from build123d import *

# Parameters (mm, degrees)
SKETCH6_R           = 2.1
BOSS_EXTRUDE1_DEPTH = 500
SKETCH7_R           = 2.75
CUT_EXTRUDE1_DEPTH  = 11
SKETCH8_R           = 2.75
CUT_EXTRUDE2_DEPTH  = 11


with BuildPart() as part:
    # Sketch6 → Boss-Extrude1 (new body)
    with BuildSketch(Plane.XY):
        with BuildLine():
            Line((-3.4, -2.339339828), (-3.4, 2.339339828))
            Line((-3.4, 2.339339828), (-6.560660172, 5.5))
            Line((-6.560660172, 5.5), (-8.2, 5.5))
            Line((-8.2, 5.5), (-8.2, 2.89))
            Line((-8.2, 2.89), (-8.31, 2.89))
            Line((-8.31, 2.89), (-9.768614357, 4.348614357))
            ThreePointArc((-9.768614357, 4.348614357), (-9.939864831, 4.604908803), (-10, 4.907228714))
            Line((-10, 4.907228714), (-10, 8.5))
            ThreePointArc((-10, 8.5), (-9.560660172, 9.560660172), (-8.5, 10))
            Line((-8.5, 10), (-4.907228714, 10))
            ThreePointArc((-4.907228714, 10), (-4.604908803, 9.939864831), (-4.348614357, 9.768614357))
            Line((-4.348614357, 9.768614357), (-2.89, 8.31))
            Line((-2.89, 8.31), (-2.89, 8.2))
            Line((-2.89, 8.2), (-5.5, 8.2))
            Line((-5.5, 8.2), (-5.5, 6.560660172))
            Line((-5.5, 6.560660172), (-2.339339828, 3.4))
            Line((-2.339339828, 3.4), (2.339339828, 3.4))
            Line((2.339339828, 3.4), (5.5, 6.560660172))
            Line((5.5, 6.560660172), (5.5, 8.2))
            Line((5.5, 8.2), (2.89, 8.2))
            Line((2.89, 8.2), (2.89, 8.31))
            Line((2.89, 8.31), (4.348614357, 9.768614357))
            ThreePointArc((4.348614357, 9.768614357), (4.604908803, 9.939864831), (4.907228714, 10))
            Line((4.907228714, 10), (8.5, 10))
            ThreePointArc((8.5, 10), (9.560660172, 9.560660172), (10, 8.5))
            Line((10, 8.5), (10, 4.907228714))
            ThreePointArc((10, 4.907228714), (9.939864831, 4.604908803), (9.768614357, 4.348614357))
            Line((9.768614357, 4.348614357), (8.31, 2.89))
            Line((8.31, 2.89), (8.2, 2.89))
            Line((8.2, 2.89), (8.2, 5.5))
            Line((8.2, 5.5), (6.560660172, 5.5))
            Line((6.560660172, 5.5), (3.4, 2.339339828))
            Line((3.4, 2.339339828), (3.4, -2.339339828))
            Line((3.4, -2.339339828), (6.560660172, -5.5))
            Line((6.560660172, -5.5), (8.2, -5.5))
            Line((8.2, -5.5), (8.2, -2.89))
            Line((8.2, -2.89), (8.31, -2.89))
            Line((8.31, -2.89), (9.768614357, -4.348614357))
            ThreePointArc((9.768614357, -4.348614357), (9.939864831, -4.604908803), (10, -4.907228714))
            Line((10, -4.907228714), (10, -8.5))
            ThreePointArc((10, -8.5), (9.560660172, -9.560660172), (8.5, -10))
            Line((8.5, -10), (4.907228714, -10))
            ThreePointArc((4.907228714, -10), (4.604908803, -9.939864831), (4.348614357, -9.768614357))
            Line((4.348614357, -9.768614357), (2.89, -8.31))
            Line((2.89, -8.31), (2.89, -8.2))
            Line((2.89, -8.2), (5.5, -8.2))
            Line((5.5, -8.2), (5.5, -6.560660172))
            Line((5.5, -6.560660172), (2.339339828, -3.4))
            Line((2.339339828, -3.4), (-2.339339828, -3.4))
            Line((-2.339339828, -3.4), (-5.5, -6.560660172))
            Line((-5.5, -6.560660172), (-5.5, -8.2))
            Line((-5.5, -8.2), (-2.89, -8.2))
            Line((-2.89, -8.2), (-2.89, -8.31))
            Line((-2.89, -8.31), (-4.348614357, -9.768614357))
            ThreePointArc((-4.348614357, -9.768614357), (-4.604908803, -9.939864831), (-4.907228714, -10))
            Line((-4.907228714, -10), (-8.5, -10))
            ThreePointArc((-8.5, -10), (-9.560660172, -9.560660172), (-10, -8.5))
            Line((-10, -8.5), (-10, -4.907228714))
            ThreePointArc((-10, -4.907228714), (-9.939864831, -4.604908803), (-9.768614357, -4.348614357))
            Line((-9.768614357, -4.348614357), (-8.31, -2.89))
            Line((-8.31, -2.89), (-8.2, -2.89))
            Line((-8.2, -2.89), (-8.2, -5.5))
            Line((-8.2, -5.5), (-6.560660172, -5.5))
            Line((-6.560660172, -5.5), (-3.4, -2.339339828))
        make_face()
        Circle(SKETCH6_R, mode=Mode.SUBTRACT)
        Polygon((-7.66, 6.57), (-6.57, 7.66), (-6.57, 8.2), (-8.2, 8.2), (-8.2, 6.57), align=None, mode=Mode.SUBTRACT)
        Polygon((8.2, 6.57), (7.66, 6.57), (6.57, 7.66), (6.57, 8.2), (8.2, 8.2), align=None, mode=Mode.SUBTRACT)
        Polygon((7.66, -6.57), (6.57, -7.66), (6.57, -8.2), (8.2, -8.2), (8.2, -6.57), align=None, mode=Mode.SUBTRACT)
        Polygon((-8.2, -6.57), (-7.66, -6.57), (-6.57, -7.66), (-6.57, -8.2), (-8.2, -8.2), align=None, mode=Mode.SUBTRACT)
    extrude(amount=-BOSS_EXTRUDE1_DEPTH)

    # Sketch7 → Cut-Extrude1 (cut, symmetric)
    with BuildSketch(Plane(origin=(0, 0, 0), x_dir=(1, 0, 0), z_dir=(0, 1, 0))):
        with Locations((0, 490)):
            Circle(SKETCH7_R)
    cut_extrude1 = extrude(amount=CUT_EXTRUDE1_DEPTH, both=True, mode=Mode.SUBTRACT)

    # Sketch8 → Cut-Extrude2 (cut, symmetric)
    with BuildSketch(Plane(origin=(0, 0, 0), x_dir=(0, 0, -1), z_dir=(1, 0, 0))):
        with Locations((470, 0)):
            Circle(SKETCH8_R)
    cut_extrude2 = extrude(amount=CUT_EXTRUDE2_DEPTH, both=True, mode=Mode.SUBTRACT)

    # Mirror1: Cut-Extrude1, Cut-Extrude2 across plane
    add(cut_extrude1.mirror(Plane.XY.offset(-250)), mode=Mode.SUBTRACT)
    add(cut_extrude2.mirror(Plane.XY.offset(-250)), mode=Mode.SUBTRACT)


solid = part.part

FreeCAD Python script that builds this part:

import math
import FreeCAD as App
import Part
import Sketcher
from FreeCAD import Vector

doc = App.newDocument("Part")
params = doc.addObject("Spreadsheet::Sheet", "Params")
for row, (alias, value) in enumerate([
    ("sketch1_diameter", "4.2 mm"),
    ("sketch1_radius", "1.5 mm"),
    ("sketch1_radius2", "0.79 mm"),
    ("sketch1_width", "0.11 mm"),
    ("sketch1_width2", "2.61 mm"),
    ("pad1_length", "500 mm"),
    ("sketch2_diameter", "5.5 mm"),
    ("pocket1_length", "22 mm"),
    ("sketch3_diameter", "5.5 mm"),
    ("pocket2_length", "22 mm"),
], start=1):
    params.set(f"A{row}", alias)
    params.set(f"B{row}", "=" + value)
    params.setAlias(f"B{row}", alias)

body = doc.addObject("PartDesign::Body", "Body")

# Sketch on XY plane
sketch1 = body.newObject("Sketcher::SketchObject", "Sketch")
sketch1.AttachmentSupport = (doc.getObject("XY_Plane"), [""])
sketch1.MapMode = "FlatFace"
sketch1.addGeometry(Part.LineSegment(Vector(-3.4, 2.33934, 0), Vector(-3.4, -2.33934, 0)), False)
sketch1.addGeometry(Part.LineSegment(Vector(-3.4, -2.33934, 0), Vector(-6.56066, -5.5, 0)), False)
sketch1.addGeometry(Part.LineSegment(Vector(-6.56066, -5.5, 0), Vector(-8.2, -5.5, 0)), False)
sketch1.addGeometry(Part.LineSegment(Vector(-8.2, -5.5, 0), Vector(-8.2, -2.89, 0)), False)
sketch1.addGeometry(Part.LineSegment(Vector(-8.2, -2.89, 0), Vector(-8.31, -2.89, 0)), False)
sketch1.addGeometry(Part.LineSegment(Vector(-8.31, -2.89, 0), Vector(-9.768614, -4.348614, 0)), False)
sketch1.addGeometry(Part.ArcOfCircle(Part.Circle(Vector(-9.21, -4.907229, 0), Vector(0, 0, 1), 0.79), math.radians(135), math.radians(180)), False)
sketch1.addGeometry(Part.LineSegment(Vector(-10, -4.907229, 0), Vector(-10, -8.5, 0)), False)
sketch1.addGeometry(Part.ArcOfCircle(Part.Circle(Vector(-8.5, -8.5, 0), Vector(0, 0, 1), 1.5), math.radians(180), math.radians(270)), False)
sketch1.addGeometry(Part.LineSegment(Vector(-8.5, -10, 0), Vector(-4.907229, -10, 0)), False)
sketch1.addGeometry(Part.ArcOfCircle(Part.Circle(Vector(-4.907229, -9.21, 0), Vector(0, 0, 1), 0.79), math.radians(-90), math.radians(-45)), False)
sketch1.addGeometry(Part.LineSegment(Vector(-4.348614, -9.768614, 0), Vector(-2.89, -8.31, 0)), False)
sketch1.addGeometry(Part.LineSegment(Vector(-2.89, -8.31, 0), Vector(-2.89, -8.2, 0)), False)
sketch1.addGeometry(Part.LineSegment(Vector(-2.89, -8.2, 0), Vector(-5.5, -8.2, 0)), False)
sketch1.addGeometry(Part.LineSegment(Vector(-5.5, -8.2, 0), Vector(-5.5, -6.56066, 0)), False)
sketch1.addGeometry(Part.LineSegment(Vector(-5.5, -6.56066, 0), Vector(-2.33934, -3.4, 0)), False)
sketch1.addGeometry(Part.LineSegment(Vector(-2.33934, -3.4, 0), Vector(2.33934, -3.4, 0)), False)
sketch1.addGeometry(Part.LineSegment(Vector(2.33934, -3.4, 0), Vector(5.5, -6.56066, 0)), False)
sketch1.addGeometry(Part.LineSegment(Vector(5.5, -6.56066, 0), Vector(5.5, -8.2, 0)), False)
sketch1.addGeometry(Part.LineSegment(Vector(5.5, -8.2, 0), Vector(2.89, -8.2, 0)), False)
sketch1.addGeometry(Part.LineSegment(Vector(2.89, -8.2, 0), Vector(2.89, -8.31, 0)), False)
sketch1.addGeometry(Part.LineSegment(Vector(2.89, -8.31, 0), Vector(4.348614, -9.768614, 0)), False)
sketch1.addGeometry(Part.ArcOfCircle(Part.Circle(Vector(4.907229, -9.21, 0), Vector(0, 0, 1), 0.79), math.radians(-135), math.radians(-90)), False)
sketch1.addGeometry(Part.LineSegment(Vector(4.907229, -10, 0), Vector(8.5, -10, 0)), False)
sketch1.addGeometry(Part.ArcOfCircle(Part.Circle(Vector(8.5, -8.5, 0), Vector(0, 0, 1), 1.5), math.radians(-90), math.radians(0)), False)
sketch1.addGeometry(Part.LineSegment(Vector(10, -8.5, 0), Vector(10, -4.907229, 0)), False)
sketch1.addGeometry(Part.ArcOfCircle(Part.Circle(Vector(9.21, -4.907229, 0), Vector(0, 0, 1), 0.79), math.radians(0), math.radians(45)), False)
sketch1.addGeometry(Part.LineSegment(Vector(9.768614, -4.348614, 0), Vector(8.31, -2.89, 0)), False)
sketch1.addGeometry(Part.LineSegment(Vector(8.31, -2.89, 0), Vector(8.2, -2.89, 0)), False)
sketch1.addGeometry(Part.LineSegment(Vector(8.2, -2.89, 0), Vector(8.2, -5.5, 0)), False)
sketch1.addGeometry(Part.LineSegment(Vector(8.2, -5.5, 0), Vector(6.56066, -5.5, 0)), False)
sketch1.addGeometry(Part.LineSegment(Vector(6.56066, -5.5, 0), Vector(3.4, -2.33934, 0)), False)
sketch1.addGeometry(Part.LineSegment(Vector(3.4, -2.33934, 0), Vector(3.4, 2.33934, 0)), False)
sketch1.addGeometry(Part.LineSegment(Vector(3.4, 2.33934, 0), Vector(6.56066, 5.5, 0)), False)
sketch1.addGeometry(Part.LineSegment(Vector(6.56066, 5.5, 0), Vector(8.2, 5.5, 0)), False)
sketch1.addGeometry(Part.LineSegment(Vector(8.2, 5.5, 0), Vector(8.2, 2.89, 0)), False)
sketch1.addGeometry(Part.LineSegment(Vector(8.2, 2.89, 0), Vector(8.31, 2.89, 0)), False)
sketch1.addGeometry(Part.LineSegment(Vector(8.31, 2.89, 0), Vector(9.768614, 4.348614, 0)), False)
sketch1.addGeometry(Part.ArcOfCircle(Part.Circle(Vector(9.21, 4.907229, 0), Vector(0, 0, 1), 0.79), math.radians(-45), math.radians(0)), False)
sketch1.addGeometry(Part.LineSegment(Vector(10, 4.907229, 0), Vector(10, 8.5, 0)), False)
sketch1.addGeometry(Part.ArcOfCircle(Part.Circle(Vector(8.5, 8.5, 0), Vector(0, 0, 1), 1.5), math.radians(0), math.radians(90)), False)
sketch1.addGeometry(Part.LineSegment(Vector(8.5, 10, 0), Vector(4.907229, 10, 0)), False)
sketch1.addGeometry(Part.ArcOfCircle(Part.Circle(Vector(4.907229, 9.21, 0), Vector(0, 0, 1), 0.79), math.radians(90), math.radians(135)), False)
sketch1.addGeometry(Part.LineSegment(Vector(4.348614, 9.768614, 0), Vector(2.89, 8.31, 0)), False)
sketch1.addGeometry(Part.LineSegment(Vector(2.89, 8.31, 0), Vector(2.89, 8.2, 0)), False)
sketch1.addGeometry(Part.LineSegment(Vector(2.89, 8.2, 0), Vector(5.5, 8.2, 0)), False)
sketch1.addGeometry(Part.LineSegment(Vector(5.5, 8.2, 0), Vector(5.5, 6.56066, 0)), False)
sketch1.addGeometry(Part.LineSegment(Vector(5.5, 6.56066, 0), Vector(2.33934, 3.4, 0)), False)
sketch1.addGeometry(Part.LineSegment(Vector(2.33934, 3.4, 0), Vector(-2.33934, 3.4, 0)), False)
sketch1.addGeometry(Part.LineSegment(Vector(-2.33934, 3.4, 0), Vector(-5.5, 6.56066, 0)), False)
sketch1.addGeometry(Part.LineSegment(Vector(-5.5, 6.56066, 0), Vector(-5.5, 8.2, 0)), False)
sketch1.addGeometry(Part.LineSegment(Vector(-5.5, 8.2, 0), Vector(-2.89, 8.2, 0)), False)
sketch1.addGeometry(Part.LineSegment(Vector(-2.89, 8.2, 0), Vector(-2.89, 8.31, 0)), False)
sketch1.addGeometry(Part.LineSegment(Vector(-2.89, 8.31, 0), Vector(-4.348614, 9.768614, 0)), False)
sketch1.addGeometry(Part.ArcOfCircle(Part.Circle(Vector(-4.907229, 9.21, 0), Vector(0, 0, 1), 0.79), math.radians(45), math.radians(90)), False)
sketch1.addGeometry(Part.LineSegment(Vector(-4.907229, 10, 0), Vector(-8.5, 10, 0)), False)
sketch1.addGeometry(Part.ArcOfCircle(Part.Circle(Vector(-8.5, 8.5, 0), Vector(0, 0, 1), 1.5), math.radians(90), math.radians(180)), False)
sketch1.addGeometry(Part.LineSegment(Vector(-10, 8.5, 0), Vector(-10, 4.907229, 0)), False)
sketch1.addGeometry(Part.ArcOfCircle(Part.Circle(Vector(-9.21, 4.907229, 0), Vector(0, 0, 1), 0.79), math.radians(180), math.radians(225)), False)
sketch1.addGeometry(Part.LineSegment(Vector(-9.768614, 4.348614, 0), Vector(-8.31, 2.89, 0)), False)
sketch1.addGeometry(Part.LineSegment(Vector(-8.31, 2.89, 0), Vector(-8.2, 2.89, 0)), False)
sketch1.addGeometry(Part.LineSegment(Vector(-8.2, 2.89, 0), Vector(-8.2, 5.5, 0)), False)
sketch1.addGeometry(Part.LineSegment(Vector(-8.2, 5.5, 0), Vector(-6.56066, 5.5, 0)), False)
sketch1.addGeometry(Part.LineSegment(Vector(-6.56066, 5.5, 0), Vector(-3.4, 2.33934, 0)), False)
sketch1.addGeometry(Part.LineSegment(Vector(7.66, -6.57, 0), Vector(8.2, -6.57, 0)), False)
sketch1.addGeometry(Part.LineSegment(Vector(8.2, -6.57, 0), Vector(8.2, -8.2, 0)), False)
sketch1.addGeometry(Part.LineSegment(Vector(8.2, -8.2, 0), Vector(6.57, -8.2, 0)), False)
sketch1.addGeometry(Part.LineSegment(Vector(6.57, -8.2, 0), Vector(6.57, -7.66, 0)), False)
sketch1.addGeometry(Part.LineSegment(Vector(6.57, -7.66, 0), Vector(7.66, -6.57, 0)), False)
sketch1.addGeometry(Part.LineSegment(Vector(-8.2, -6.57, 0), Vector(-7.66, -6.57, 0)), False)
sketch1.addGeometry(Part.LineSegment(Vector(-7.66, -6.57, 0), Vector(-6.57, -7.66, 0)), False)
sketch1.addGeometry(Part.LineSegment(Vector(-6.57, -7.66, 0), Vector(-6.57, -8.2, 0)), False)
sketch1.addGeometry(Part.LineSegment(Vector(-6.57, -8.2, 0), Vector(-8.2, -8.2, 0)), False)
sketch1.addGeometry(Part.LineSegment(Vector(-8.2, -8.2, 0), Vector(-8.2, -6.57, 0)), False)
sketch1.addGeometry(Part.LineSegment(Vector(8.2, 6.57, 0), Vector(7.66, 6.57, 0)), False)
sketch1.addGeometry(Part.LineSegment(Vector(7.66, 6.57, 0), Vector(6.57, 7.66, 0)), False)
sketch1.addGeometry(Part.LineSegment(Vector(6.57, 7.66, 0), Vector(6.57, 8.2, 0)), False)
sketch1.addGeometry(Part.LineSegment(Vector(6.57, 8.2, 0), Vector(8.2, 8.2, 0)), False)
sketch1.addGeometry(Part.LineSegment(Vector(8.2, 8.2, 0), Vector(8.2, 6.57, 0)), False)
sketch1.addGeometry(Part.Circle(Vector(0, 0, 0), Vector(0, 0, 1), 2.1), False)
sketch1.addGeometry(Part.LineSegment(Vector(-7.66, 6.57, 0), Vector(-8.2, 6.57, 0)), False)
sketch1.addGeometry(Part.LineSegment(Vector(-8.2, 6.57, 0), Vector(-8.2, 8.2, 0)), False)
sketch1.addGeometry(Part.LineSegment(Vector(-8.2, 8.2, 0), Vector(-6.57, 8.2, 0)), False)
sketch1.addGeometry(Part.LineSegment(Vector(-6.57, 8.2, 0), Vector(-6.57, 7.66, 0)), False)
sketch1.addGeometry(Part.LineSegment(Vector(-6.57, 7.66, 0), Vector(-7.66, 6.57, 0)), False)
sketch1.addConstraint(Sketcher.Constraint("Coincident", 0, 2, 1, 1))
sketch1.addConstraint(Sketcher.Constraint("Coincident", 1, 2, 2, 1))
sketch1.addConstraint(Sketcher.Constraint("Coincident", 2, 2, 3, 1))
sketch1.addConstraint(Sketcher.Constraint("Coincident", 3, 2, 4, 1))
sketch1.addConstraint(Sketcher.Constraint("Coincident", 4, 2, 5, 1))
sketch1.addConstraint(Sketcher.Constraint("Tangent", 5, 2, 6, 1))
sketch1.addConstraint(Sketcher.Constraint("Tangent", 6, 2, 7, 1))
sketch1.addConstraint(Sketcher.Constraint("Tangent", 7, 2, 8, 1))
sketch1.addConstraint(Sketcher.Constraint("Tangent", 8, 2, 9, 1))
sketch1.addConstraint(Sketcher.Constraint("Tangent", 9, 2, 10, 1))
sketch1.addConstraint(Sketcher.Constraint("Tangent", 10, 2, 11, 1))
sketch1.addConstraint(Sketcher.Constraint("Coincident", 11, 2, 12, 1))
sketch1.addConstraint(Sketcher.Constraint("Coincident", 12, 2, 13, 1))
sketch1.addConstraint(Sketcher.Constraint("Coincident", 13, 2, 14, 1))
sketch1.addConstraint(Sketcher.Constraint("Coincident", 14, 2, 15, 1))
sketch1.addConstraint(Sketcher.Constraint("Coincident", 15, 2, 16, 1))
sketch1.addConstraint(Sketcher.Constraint("Coincident", 16, 2, 17, 1))
sketch1.addConstraint(Sketcher.Constraint("Coincident", 17, 2, 18, 1))
sketch1.addConstraint(Sketcher.Constraint("Coincident", 18, 2, 19, 1))
sketch1.addConstraint(Sketcher.Constraint("Coincident", 19, 2, 20, 1))
sketch1.addConstraint(Sketcher.Constraint("Coincident", 20, 2, 21, 1))
sketch1.addConstraint(Sketcher.Constraint("Tangent", 21, 2, 22, 1))
sketch1.addConstraint(Sketcher.Constraint("Tangent", 22, 2, 23, 1))
sketch1.addConstraint(Sketcher.Constraint("Tangent", 23, 2, 24, 1))
sketch1.addConstraint(Sketcher.Constraint("Tangent", 24, 2, 25, 1))
sketch1.addConstraint(Sketcher.Constraint("Tangent", 25, 2, 26, 1))
sketch1.addConstraint(Sketcher.Constraint("Tangent", 26, 2, 27, 1))
sketch1.addConstraint(Sketcher.Constraint("Coincident", 27, 2, 28, 1))
sketch1.addConstraint(Sketcher.Constraint("Coincident", 28, 2, 29, 1))
sketch1.addConstraint(Sketcher.Constraint("Coincident", 29, 2, 30, 1))
sketch1.addConstraint(Sketcher.Constraint("Coincident", 30, 2, 31, 1))
sketch1.addConstraint(Sketcher.Constraint("Coincident", 31, 2, 32, 1))
sketch1.addConstraint(Sketcher.Constraint("Coincident", 32, 2, 33, 1))
sketch1.addConstraint(Sketcher.Constraint("Coincident", 33, 2, 34, 1))
sketch1.addConstraint(Sketcher.Constraint("Coincident", 34, 2, 35, 1))
sketch1.addConstraint(Sketcher.Constraint("Coincident", 35, 2, 36, 1))
sketch1.addConstraint(Sketcher.Constraint("Coincident", 36, 2, 37, 1))
sketch1.addConstraint(Sketcher.Constraint("Tangent", 37, 2, 38, 1))
sketch1.addConstraint(Sketcher.Constraint("Tangent", 38, 2, 39, 1))
sketch1.addConstraint(Sketcher.Constraint("Tangent", 39, 2, 40, 1))
sketch1.addConstraint(Sketcher.Constraint("Tangent", 40, 2, 41, 1))
sketch1.addConstraint(Sketcher.Constraint("Tangent", 41, 2, 42, 1))
sketch1.addConstraint(Sketcher.Constraint("Tangent", 42, 2, 43, 1))
sketch1.addConstraint(Sketcher.Constraint("Coincident", 43, 2, 44, 1))
sketch1.addConstraint(Sketcher.Constraint("Coincident", 44, 2, 45, 1))
sketch1.addConstraint(Sketcher.Constraint("Coincident", 45, 2, 46, 1))
sketch1.addConstraint(Sketcher.Constraint("Coincident", 46, 2, 47, 1))
sketch1.addConstraint(Sketcher.Constraint("Coincident", 47, 2, 48, 1))
sketch1.addConstraint(Sketcher.Constraint("Coincident", 48, 2, 49, 1))
sketch1.addConstraint(Sketcher.Constraint("Coincident", 49, 2, 50, 1))
sketch1.addConstraint(Sketcher.Constraint("Coincident", 50, 2, 51, 1))
sketch1.addConstraint(Sketcher.Constraint("Coincident", 51, 2, 52, 1))
sketch1.addConstraint(Sketcher.Constraint("Coincident", 52, 2, 53, 1))
sketch1.addConstraint(Sketcher.Constraint("Tangent", 53, 2, 54, 1))
sketch1.addConstraint(Sketcher.Constraint("Tangent", 54, 2, 55, 1))
sketch1.addConstraint(Sketcher.Constraint("Tangent", 55, 2, 56, 1))
sketch1.addConstraint(Sketcher.Constraint("Tangent", 56, 2, 57, 1))
sketch1.addConstraint(Sketcher.Constraint("Tangent", 57, 2, 58, 1))
sketch1.addConstraint(Sketcher.Constraint("Tangent", 58, 2, 59, 1))
sketch1.addConstraint(Sketcher.Constraint("Coincident", 59, 2, 60, 1))
sketch1.addConstraint(Sketcher.Constraint("Coincident", 60, 2, 61, 1))
sketch1.addConstraint(Sketcher.Constraint("Coincident", 61, 2, 62, 1))
sketch1.addConstraint(Sketcher.Constraint("Coincident", 62, 2, 63, 1))
sketch1.addConstraint(Sketcher.Constraint("Coincident", 63, 2, 0, 1))
sketch1.addConstraint(Sketcher.Constraint("Coincident", 64, 2, 65, 1))
sketch1.addConstraint(Sketcher.Constraint("Coincident", 65, 2, 66, 1))
sketch1.addConstraint(Sketcher.Constraint("Coincident", 66, 2, 67, 1))
sketch1.addConstraint(Sketcher.Constraint("Coincident", 67, 2, 68, 1))
sketch1.addConstraint(Sketcher.Constraint("Coincident", 68, 2, 64, 1))
sketch1.addConstraint(Sketcher.Constraint("Coincident", 69, 2, 70, 1))
sketch1.addConstraint(Sketcher.Constraint("Coincident", 70, 2, 71, 1))
sketch1.addConstraint(Sketcher.Constraint("Coincident", 71, 2, 72, 1))
sketch1.addConstraint(Sketcher.Constraint("Coincident", 72, 2, 73, 1))
sketch1.addConstraint(Sketcher.Constraint("Coincident", 73, 2, 69, 1))
sketch1.addConstraint(Sketcher.Constraint("Coincident", 74, 2, 75, 1))
sketch1.addConstraint(Sketcher.Constraint("Coincident", 75, 2, 76, 1))
sketch1.addConstraint(Sketcher.Constraint("Coincident", 76, 2, 77, 1))
sketch1.addConstraint(Sketcher.Constraint("Coincident", 77, 2, 78, 1))
sketch1.addConstraint(Sketcher.Constraint("Coincident", 78, 2, 74, 1))
sketch1.addConstraint(Sketcher.Constraint("Coincident", 80, 2, 81, 1))
sketch1.addConstraint(Sketcher.Constraint("Coincident", 81, 2, 82, 1))
sketch1.addConstraint(Sketcher.Constraint("Coincident", 82, 2, 83, 1))
sketch1.addConstraint(Sketcher.Constraint("Coincident", 83, 2, 84, 1))
sketch1.addConstraint(Sketcher.Constraint("Coincident", 84, 2, 80, 1))
sketch1.addConstraint(Sketcher.Constraint("Vertical", 0))
sketch1.addConstraint(Sketcher.Constraint("Horizontal", 2))
sketch1.addConstraint(Sketcher.Constraint("Vertical", 3))
sketch1.addConstraint(Sketcher.Constraint("Horizontal", 4))
sketch1.addConstraint(Sketcher.Constraint("Vertical", 7))
sketch1.addConstraint(Sketcher.Constraint("Horizontal", 9))
sketch1.addConstraint(Sketcher.Constraint("Vertical", 12))
sketch1.addConstraint(Sketcher.Constraint("Horizontal", 13))
sketch1.addConstraint(Sketcher.Constraint("Vertical", 14))
sketch1.addConstraint(Sketcher.Constraint("Horizontal", 16))
sketch1.addConstraint(Sketcher.Constraint("Vertical", 18))
sketch1.addConstraint(Sketcher.Constraint("Horizontal", 19))
sketch1.addConstraint(Sketcher.Constraint("Vertical", 20))
sketch1.addConstraint(Sketcher.Constraint("Horizontal", 23))
sketch1.addConstraint(Sketcher.Constraint("Vertical", 25))
sketch1.addConstraint(Sketcher.Constraint("Horizontal", 28))
sketch1.addConstraint(Sketcher.Constraint("Vertical", 29))
sketch1.addConstraint(Sketcher.Constraint("Horizontal", 30))
sketch1.addConstraint(Sketcher.Constraint("Vertical", 32))
sketch1.addConstraint(Sketcher.Constraint("Horizontal", 34))
sketch1.addConstraint(Sketcher.Constraint("Vertical", 35))
sketch1.addConstraint(Sketcher.Constraint("Horizontal", 36))
sketch1.addConstraint(Sketcher.Constraint("Vertical", 39))
sketch1.addConstraint(Sketcher.Constraint("Horizontal", 41))
sketch1.addConstraint(Sketcher.Constraint("Vertical", 44))
sketch1.addConstraint(Sketcher.Constraint("Horizontal", 45))
sketch1.addConstraint(Sketcher.Constraint("Vertical", 46))
sketch1.addConstraint(Sketcher.Constraint("Horizontal", 48))
sketch1.addConstraint(Sketcher.Constraint("Vertical", 50))
sketch1.addConstraint(Sketcher.Constraint("Horizontal", 51))
sketch1.addConstraint(Sketcher.Constraint("Vertical", 52))
sketch1.addConstraint(Sketcher.Constraint("Horizontal", 55))
sketch1.addConstraint(Sketcher.Constraint("Vertical", 57))
sketch1.addConstraint(Sketcher.Constraint("Horizontal", 60))
sketch1.addConstraint(Sketcher.Constraint("Vertical", 61))
sketch1.addConstraint(Sketcher.Constraint("Horizontal", 62))
sketch1.addConstraint(Sketcher.Constraint("Horizontal", 64))
sketch1.addConstraint(Sketcher.Constraint("Vertical", 65))
sketch1.addConstraint(Sketcher.Constraint("Horizontal", 66))
sketch1.addConstraint(Sketcher.Constraint("Vertical", 67))
sketch1.addConstraint(Sketcher.Constraint("Horizontal", 69))
sketch1.addConstraint(Sketcher.Constraint("Vertical", 71))
sketch1.addConstraint(Sketcher.Constraint("Horizontal", 72))
sketch1.addConstraint(Sketcher.Constraint("Vertical", 73))
sketch1.addConstraint(Sketcher.Constraint("Horizontal", 74))
sketch1.addConstraint(Sketcher.Constraint("Vertical", 76))
sketch1.addConstraint(Sketcher.Constraint("Horizontal", 77))
sketch1.addConstraint(Sketcher.Constraint("Vertical", 78))
sketch1.addConstraint(Sketcher.Constraint("Horizontal", 80))
sketch1.addConstraint(Sketcher.Constraint("Vertical", 81))
sketch1.addConstraint(Sketcher.Constraint("Horizontal", 82))
sketch1.addConstraint(Sketcher.Constraint("Vertical", 83))
sketch1.addConstraint(Sketcher.Constraint("Coincident", 79, 3, -1, 1))
sketch1.addConstraint(Sketcher.Constraint("Equal", 6, 10))
sketch1.addConstraint(Sketcher.Constraint("Equal", 10, 22))
sketch1.addConstraint(Sketcher.Constraint("Equal", 8, 24))
sketch1.addConstraint(Sketcher.Constraint("Equal", 22, 26))
sketch1.addConstraint(Sketcher.Constraint("Equal", 26, 38))
sketch1.addConstraint(Sketcher.Constraint("Equal", 24, 40))
sketch1.addConstraint(Sketcher.Constraint("Equal", 38, 42))
sketch1.addConstraint(Sketcher.Constraint("Equal", 42, 54))
sketch1.addConstraint(Sketcher.Constraint("Equal", 40, 56))
sketch1.addConstraint(Sketcher.Constraint("Equal", 54, 58))
sketch1.addConstraint(Sketcher.Constraint("Symmetric", 6, 3, 38, 3, -1, 1))
sketch1.addConstraint(Sketcher.Constraint("Symmetric", 10, 3, 42, 3, -1, 1))
sketch1.addConstraint(Sketcher.Constraint("Symmetric", 22, 3, 54, 3, -1, 1))
sketch1.addConstraint(Sketcher.Constraint("Symmetric", 26, 3, 58, 3, -1, 1))
sketch1.addConstraint(Sketcher.Constraint("Symmetric", 0, 2, 32, 2, -1, 1))
sketch1.addConstraint(Sketcher.Constraint("Symmetric", 1, 2, 33, 2, -1, 1))
sketch1.addConstraint(Sketcher.Constraint("Symmetric", 3, 2, 35, 2, -1, 1))
sketch1.addConstraint(Sketcher.Constraint("Symmetric", 11, 2, 43, 2, -1, 1))
sketch1.addConstraint(Sketcher.Constraint("Symmetric", 13, 2, 45, 2, -1, 1))
sketch1.addConstraint(Sketcher.Constraint("Symmetric", 15, 2, 47, 2, -1, 1))
sketch1.addConstraint(Sketcher.Constraint("Symmetric", 17, 2, 49, 2, -1, 1))
sketch1.addConstraint(Sketcher.Constraint("Symmetric", 19, 2, 51, 2, -1, 1))
sketch1.addConstraint(Sketcher.Constraint("Symmetric", 27, 2, 59, 2, -1, 1))
sketch1.addConstraint(Sketcher.Constraint("Symmetric", 29, 2, 61, 2, -1, 1))
sketch1.addConstraint(Sketcher.Constraint("Symmetric", 69, 2, 74, 2, -1, 1))
sketch1.addConstraint(Sketcher.Constraint("Symmetric", 70, 2, 75, 2, -1, 1))
sketch1.addConstraint(Sketcher.Constraint("Symmetric", 72, 2, 77, 2, -1, 1))
sketch1.addConstraint(Sketcher.Constraint("Symmetric", 64, 2, 80, 2, -1, 1))
sketch1.addConstraint(Sketcher.Constraint("Symmetric", 66, 2, 82, 2, -1, 1))
sketch1.addConstraint(Sketcher.Constraint("Symmetric", 10, 3, 22, 3, -2))
sketch1.addConstraint(Sketcher.Constraint("Symmetric", 6, 3, 26, 3, -2))
sketch1.addConstraint(Sketcher.Constraint("Symmetric", 14, 2, 17, 2, -2))
sketch1.addConstraint(Sketcher.Constraint("Symmetric", 12, 2, 19, 2, -2))
sketch1.addConstraint(Sketcher.Constraint("Symmetric", 4, 2, 27, 2, -2))
sketch1.addConstraint(Sketcher.Constraint("Symmetric", 2, 2, 29, 2, -2))
sketch1.addConstraint(Sketcher.Constraint("Symmetric", 68, 2, 69, 2, -2))
sketch1.addConstraint(Sketcher.Constraint("Symmetric", 67, 2, 70, 2, -2))
sketch1.addConstraint(Sketcher.Constraint("Symmetric", 65, 2, 72, 2, -2))
sketch1.addConstraint(Sketcher.Constraint("Parallel", 1, 5))
sketch1.addConstraint(Sketcher.Constraint("Parallel", 5, 11))
sketch1.addConstraint(Sketcher.Constraint("Parallel", 11, 15))
sketch1.addConstraint(Sketcher.Constraint("Perpendicular", 15, 17))
sketch1.addConstraint(Sketcher.Constraint("Parallel", 17, 21))
sketch1.addConstraint(Sketcher.Constraint("Parallel", 21, 27))
sketch1.addConstraint(Sketcher.Constraint("Parallel", 27, 31))
sketch1.addConstraint(Sketcher.Constraint("Parallel", 33, 37))
sketch1.addConstraint(Sketcher.Constraint("Parallel", 43, 47))
sketch1.addConstraint(Sketcher.Constraint("Perpendicular", 47, 49))
sketch1.addConstraint(Sketcher.Constraint("Parallel", 49, 53))
sketch1.addConstraint(Sketcher.Constraint("Parallel", 59, 63))
sketch1.addConstraint(Sketcher.Constraint("Perpendicular", 63, 68))
sketch1.addConstraint(Sketcher.Constraint("Perpendicular", 75, 84))
sketch1.addConstraint(Sketcher.Constraint("Horizontal", 0, 2, 31, 2))
sketch1.addConstraint(Sketcher.Constraint("Horizontal", 32, 2, 63, 2))
sketch1.addConstraint(Sketcher.Constraint("Horizontal", 19, 2, 65, 2))
sketch1.addConstraint(Sketcher.Constraint("Horizontal", 75, 2, 83, 2))
sketch1.addConstraint(Sketcher.Constraint("Vertical", 35, 2, 64, 2))
sketch1.addConstraint(Sketcher.Constraint("Equal", 48, 0))
sketch1.addConstraint(Sketcher.Constraint("Equal", 51, 3))
sketch1.addConstraint(Sketcher.Constraint("Equal", 55, 7))
sketch1.addConstraint(Sketcher.Constraint("Equal", 60, 12))
sketch1.addConstraint(Sketcher.Constraint("Equal", 62, 14))
sketch1.addConstraint(Sketcher.Constraint("Equal", 82, 65))
sketch1.addConstraint(Sketcher.Constraint("Equal", 5, 11))
sketch1.addConstraint(Sketcher.Constraint("Equal", 1, 15))
sketch1.addConstraint(Sketcher.Constraint("Diameter", 79, 4.2))
sketch1.addConstraint(Sketcher.Constraint("Radius", 8, 1.5))
sketch1.addConstraint(Sketcher.Constraint("Radius", 6, 0.79))
sketch1.addConstraint(Sketcher.Constraint("DistanceX", 6, 2, -1, 1, 10.0))
sketch1.addConstraint(Sketcher.Constraint("DistanceX", 4, 2, 4, 1, 0.11))
sketch1.addConstraint(Sketcher.Constraint("DistanceX", 13, 2, 13, 1, 2.61))
sketch1.addConstraint(Sketcher.Constraint("DistanceX", 64, 1, 64, 2, 0.54))
sketch1.addConstraint(Sketcher.Constraint("DistanceX", 66, 2, 66, 1, 1.63))
sketch1.addConstraint(Sketcher.Constraint("DistanceX", 0, 2, -1, 1, 3.4))
sketch1.addConstraint(Sketcher.Constraint("DistanceY", 1, 2, -1, 1, 5.5))
sketch1.addConstraint(Sketcher.Constraint("DistanceX", 2, 2, -1, 1, 8.2))
sketch1.addConstraint(Sketcher.Constraint("DistanceX", 2, 2, 2, 1, 1.63934))
sketch1.setExpression("Constraints[202]", "Params.sketch1_diameter")
sketch1.setExpression("Constraints[203]", "Params.sketch1_radius")
sketch1.setExpression("Constraints[204]", "Params.sketch1_radius2")
sketch1.setExpression("Constraints[206]", "Params.sketch1_width")
sketch1.setExpression("Constraints[207]", "Params.sketch1_width2")
pad1 = body.newObject("PartDesign::Pad", "Pad")
pad1.Profile = sketch1
pad1.setExpression("Length", "Params.pad1_length")
pad1.Reversed = True

# Sketch on XZ plane
sketch2 = body.newObject("Sketcher::SketchObject", "Sketch001")
sketch2.AttachmentSupport = (doc.getObject("XZ_Plane"), [""])
sketch2.MapMode = "FlatFace"
sketch2.addGeometry(Part.Circle(Vector(0, -490, 0), Vector(0, 0, 1), 2.75), False)
sketch2.addConstraint(Sketcher.Constraint("PointOnObject", 0, 3, -2))
sketch2.addConstraint(Sketcher.Constraint("Diameter", 0, 5.5))
sketch2.addConstraint(Sketcher.Constraint("DistanceY", 0, 3, -1, 1, 490.0))
sketch2.setExpression("Constraints[1]", "Params.sketch2_diameter")
pocket1 = body.newObject("PartDesign::Pocket", "Pocket")
pocket1.Profile = sketch2
pocket1.setExpression("Length", "Params.pocket1_length")
pocket1.Midplane = True

# Sketch on YZ plane
sketch3 = body.newObject("Sketcher::SketchObject", "Sketch002")
sketch3.AttachmentSupport = (doc.getObject("YZ_Plane"), [""])
sketch3.MapMode = "FlatFace"
sketch3.addGeometry(Part.Circle(Vector(0, -470, 0), Vector(0, 0, 1), 2.75), False)
sketch3.addConstraint(Sketcher.Constraint("PointOnObject", 0, 3, -2))
sketch3.addConstraint(Sketcher.Constraint("Diameter", 0, 5.5))
sketch3.addConstraint(Sketcher.Constraint("DistanceY", 0, 3, -1, 1, 470.0))
sketch3.setExpression("Constraints[1]", "Params.sketch3_diameter")
pocket2 = body.newObject("PartDesign::Pocket", "Pocket001")
pocket2.Profile = sketch3
pocket2.setExpression("Length", "Params.pocket2_length")
pocket2.Midplane = True
doc.recompute()

datumplane = body.newObject("PartDesign::Plane", "DatumPlane")
datumplane.AttachmentSupport = (doc.getObject("XY_Plane"), [""])
datumplane.MapMode = "FlatFace"
datumplane.AttachmentOffset = App.Placement(Vector(0, 0, -250), App.Rotation())
mirrored = body.newObject("PartDesign::Mirrored", "Mirrored")
mirrored.Originals = [pocket1, pocket2]
mirrored.MirrorPlane = (datumplane, [""])
body.Tip = mirrored

doc.recompute()
